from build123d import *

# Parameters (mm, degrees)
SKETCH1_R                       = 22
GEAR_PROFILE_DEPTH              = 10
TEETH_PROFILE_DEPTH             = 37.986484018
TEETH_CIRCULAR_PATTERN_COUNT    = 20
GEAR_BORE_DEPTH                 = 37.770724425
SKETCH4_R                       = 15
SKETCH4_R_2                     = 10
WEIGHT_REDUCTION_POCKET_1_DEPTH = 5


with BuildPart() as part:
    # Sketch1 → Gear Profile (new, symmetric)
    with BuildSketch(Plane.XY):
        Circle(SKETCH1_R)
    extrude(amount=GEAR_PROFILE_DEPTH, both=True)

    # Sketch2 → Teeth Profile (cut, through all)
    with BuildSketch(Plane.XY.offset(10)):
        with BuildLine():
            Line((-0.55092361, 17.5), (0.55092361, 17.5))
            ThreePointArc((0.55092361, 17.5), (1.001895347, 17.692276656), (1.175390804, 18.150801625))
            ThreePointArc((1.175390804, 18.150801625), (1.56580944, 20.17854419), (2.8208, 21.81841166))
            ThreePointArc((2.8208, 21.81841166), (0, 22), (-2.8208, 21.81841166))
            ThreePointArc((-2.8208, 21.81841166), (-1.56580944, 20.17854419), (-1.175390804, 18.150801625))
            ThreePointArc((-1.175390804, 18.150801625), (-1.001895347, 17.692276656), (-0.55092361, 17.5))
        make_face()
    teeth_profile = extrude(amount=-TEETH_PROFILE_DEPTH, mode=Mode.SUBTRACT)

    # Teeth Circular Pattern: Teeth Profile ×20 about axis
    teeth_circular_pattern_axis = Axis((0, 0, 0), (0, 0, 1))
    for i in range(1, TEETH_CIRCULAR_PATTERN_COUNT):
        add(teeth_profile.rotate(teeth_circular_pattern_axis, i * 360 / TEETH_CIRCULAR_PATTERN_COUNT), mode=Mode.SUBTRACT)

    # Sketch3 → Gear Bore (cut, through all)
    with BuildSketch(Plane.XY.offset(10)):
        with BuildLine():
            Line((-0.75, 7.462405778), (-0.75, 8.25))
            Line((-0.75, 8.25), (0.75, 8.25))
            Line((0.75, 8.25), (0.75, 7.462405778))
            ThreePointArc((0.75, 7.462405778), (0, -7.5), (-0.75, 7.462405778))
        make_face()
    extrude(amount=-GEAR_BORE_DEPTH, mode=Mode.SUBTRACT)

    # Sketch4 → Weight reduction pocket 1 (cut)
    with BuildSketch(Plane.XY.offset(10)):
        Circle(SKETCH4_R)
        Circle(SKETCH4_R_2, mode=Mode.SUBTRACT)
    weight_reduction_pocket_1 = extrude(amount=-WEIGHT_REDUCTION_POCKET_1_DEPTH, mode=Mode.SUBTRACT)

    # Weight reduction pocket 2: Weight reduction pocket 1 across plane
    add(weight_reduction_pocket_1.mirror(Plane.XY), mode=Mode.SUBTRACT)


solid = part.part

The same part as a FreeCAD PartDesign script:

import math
import FreeCAD as App
import Part
import Sketcher
Q = App.Units.Quantity

doc = App.newDocument("Part")
params = doc.addObject("Spreadsheet::Sheet", "Params")
for row, (alias, value) in enumerate([
    ("sketch1_diameter", "44 mm"),
    ("pad1_length", "20 mm"),
    ("sketch2_radius", "22 mm"),
    ("sketch2_radius2", "4.5 mm"),
    ("sketch3_radius", "7.5 mm"),
    ("sketch3_width", "1.5 mm"),
    ("sketch4_diameter", "30 mm"),
    ("sketch4_diameter2", "20 mm"),
    ("pocket3_length", "5 mm"),
], start=1):
    params.set(f"A{row}", alias)
    params.set(f"B{row}", "=" + value)
    params.setAlias(f"B{row}", alias)

body = doc.addObject("PartDesign::Body", "Body")

# Sketch on XY plane
sketch1 = doc.addObject("Sketcher::SketchObject", "Sketch")
body.addObject(sketch1)
sketch1.AttachmentSupport = (doc.XY_Plane, [""])
sketch1.MapMode = "FlatFace"
sketch1.addGeometry(Part.Circle(App.Vector(0, 0, 0), App.Vector(0, 0, 1), 22), False)
sketch1.addConstraint([
    Sketcher.Constraint("Coincident", 0, 3, -1, 1),
    Sketcher.Constraint("Diameter", 0, Q("44 mm")),
])
sketch1.setExpression("Constraints[1]", "Params.sketch1_diameter")
pad1 = doc.addObject("PartDesign::Pad", "Pad")
body.addObject(pad1)
pad1.Profile = sketch1
pad1.setExpression("Length", "Params.pad1_length")
pad1.Midplane = True

# Sketch on XY plane
sketch2 = doc.addObject("Sketcher::SketchObject", "Sketch001")
body.addObject(sketch2)
sketch2.AttachmentSupport = (doc.XY_Plane, [""])
sketch2.MapMode = "FlatFace"
sketch2.AttachmentOffset = App.Placement(App.Vector(0, 0, 10), App.Rotation())
sketch2.addGeometry([
    Part.LineSegment(App.Vector(-0.6, 17.5, 0), App.Vector(0.6, 17.5, 0)),  # 0
    Part.ArcOfCircle(Part.Circle(App.Vector(0.6, 18.1, 0), App.Vector(0, 0, 1), 0.6), math.radians(-90), math.radians(2)),  # 1
    Part.ArcOfCircle(Part.Circle(App.Vector(5.7, 18.3, 0), App.Vector(0, 0, 1), 4.5), math.radians(129), math.radians(182)),  # 2
    Part.ArcOfCircle(Part.Circle(App.Vector(0, 0, 0), App.Vector(0, 0, 1), 22), math.radians(82.63), math.radians(97.37)),  # 3
    Part.ArcOfCircle(Part.Circle(App.Vector(-5.7, 18.3, 0), App.Vector(0, 0, 1), 4.5), math.radians(-2), math.radians(51)),  # 4
    Part.ArcOfCircle(Part.Circle(App.Vector(-0.6, 18.1, 0), App.Vector(0, 0, 1), 0.6), math.radians(178), math.radians(270)),  # 5
], False)
sketch2.addConstraint([
    Sketcher.Constraint("Tangent", 0, 2, 1, 1),
    Sketcher.Constraint("Tangent", 1, 2, 2, 2),
    Sketcher.Constraint("Coincident", 2, 1, 3, 1),
    Sketcher.Constraint("Coincident", 3, 2, 4, 2),
    Sketcher.Constraint("Tangent", 4, 1, 5, 1),
    Sketcher.Constraint("Tangent", 5, 2, 0, 1),
    Sketcher.Constraint("Horizontal", 0),
    Sketcher.Constraint("Coincident", 3, 3, -1, 1),
    Sketcher.Constraint("Equal", 2, 4),
    Sketcher.Constraint("Equal", 1, 5),
    Sketcher.Constraint("Symmetric", 2, 3, 4, 3, -2),
    Sketcher.Constraint("Radius", 3, Q("22 mm")),
    Sketcher.Constraint("Radius", 2, Q("4.5 mm")),
    Sketcher.Constraint("Radius", 1, Q("0.625 mm")),
    Sketcher.Constraint("DistanceY", -1, 1, 0, 2, Q("17.5 mm")),
    Sketcher.Constraint("DistanceY", -1, 1, 1, 2, Q("18.150802 mm")),
    Sketcher.Constraint("DistanceX", -1, 1, 2, 1, Q("2.8208 mm")),
])
sketch2.setExpression("Constraints[11]", "Params.sketch2_radius")
sketch2.setExpression("Constraints[12]", "Params.sketch2_radius2")
pocket1 = doc.addObject("PartDesign::Pocket", "Pocket")
body.addObject(pocket1)
pocket1.Profile = sketch2
pocket1.Type = "ThroughAll"
doc.recompute()

polarpattern = doc.addObject("PartDesign::PolarPattern", "PolarPattern")
body.addObject(polarpattern)
polarpattern.Originals = [pocket1]
polarpattern.Axis = (doc.Z_Axis, [""])
polarpattern.Angle = 360
polarpattern.Occurrences = 20
body.Tip = polarpattern

# Sketch on XY plane
sketch3 = doc.addObject("Sketcher::SketchObject", "Sketch002")
body.addObject(sketch3)
sketch3.AttachmentSupport = (doc.XY_Plane, [""])
sketch3.MapMode = "FlatFace"
sketch3.AttachmentOffset = App.Placement(App.Vector(0, 0, 10), App.Rotation())
sketch3.addGeometry([
    Part.LineSegment(App.Vector(-0.8, 8.2, 0), App.Vector(-0.8, 7.5, 0)),
    Part.ArcOfCircle(Part.Circle(App.Vector(0, 0, 0), App.Vector(0, 0, 1), 7.5), math.radians(96), math.radians(444)),
    Part.LineSegment(App.Vector(0.8, 7.5, 0), App.Vector(0.8, 8.2, 0)),
    Part.LineSegment(App.Vector(0.8, 8.2, 0), App.Vector(-0.8, 8.2, 0)),
], False)
sketch3.addConstraint([
    Sketcher.Constraint("Coincident", 0, 2, 1, 1),
    Sketcher.Constraint("Coincident", 1, 2, 2, 1),
    Sketcher.Constraint("Coincident", 2, 2, 3, 1),
    Sketcher.Constraint("Coincident", 3, 2, 0, 1),
    Sketcher.Constraint("Vertical", 0),
    Sketcher.Constraint("Vertical", 2),
    Sketcher.Constraint("Horizontal", 3),
    Sketcher.Constraint("Coincident", 1, 3, -1, 1),
    Sketcher.Constraint("Horizontal", 0, 2, 1, 2),
    Sketcher.Constraint("Radius", 1, Q("7.5 mm")),
    Sketcher.Constraint("DistanceX", 3, 2, 3, 1, Q("1.5 mm")),
    Sketcher.Constraint("DistanceY", -1, 1, 2, 2, Q("8.25 mm")),
])
sketch3.setExpression("Constraints[9]", "Params.sketch3_radius")
sketch3.setExpression("Constraints[10]", "Params.sketch3_width")
pocket2 = doc.addObject("PartDesign::Pocket", "Pocket001")
body.addObject(pocket2)
pocket2.Profile = sketch3
pocket2.Type = "ThroughAll"

# Sketch on XY plane
sketch4 = doc.addObject("Sketcher::SketchObject", "Sketch003")
body.addObject(sketch4)
sketch4.AttachmentSupport = (doc.XY_Plane, [""])
sketch4.MapMode = "FlatFace"
sketch4.AttachmentOffset = App.Placement(App.Vector(0, 0, 10), App.Rotation())
sketch4.addGeometry([
    Part.Circle(App.Vector(0, 0, 0), App.Vector(0, 0, 1), 15),
    Part.Circle(App.Vector(0, 0, 0), App.Vector(0, 0, 1), 10),
], False)
sketch4.addConstraint([
    Sketcher.Constraint("Coincident", 0, 3, -1, 1),
    Sketcher.Constraint("Coincident", 1, 3, -1, 1),
    Sketcher.Constraint("Diameter", 0, Q("30 mm")),
    Sketcher.Constraint("Diameter", 1, Q("20 mm")),
])
sketch4.setExpression("Constraints[2]", "Params.sketch4_diameter")
sketch4.setExpression("Constraints[3]", "Params.sketch4_diameter2")
pocket3 = doc.addObject("PartDesign::Pocket", "Pocket002")
body.addObject(pocket3)
pocket3.Profile = sketch4
pocket3.setExpression("Length", "Params.pocket3_length")
doc.recompute()

mirrored = doc.addObject("PartDesign::Mirrored", "Mirrored")
body.addObject(mirrored)
mirrored.Originals = [pocket3]
mirrored.MirrorPlane = (doc.XY_Plane, [""])
body.Tip = mirrored

doc.recompute()
